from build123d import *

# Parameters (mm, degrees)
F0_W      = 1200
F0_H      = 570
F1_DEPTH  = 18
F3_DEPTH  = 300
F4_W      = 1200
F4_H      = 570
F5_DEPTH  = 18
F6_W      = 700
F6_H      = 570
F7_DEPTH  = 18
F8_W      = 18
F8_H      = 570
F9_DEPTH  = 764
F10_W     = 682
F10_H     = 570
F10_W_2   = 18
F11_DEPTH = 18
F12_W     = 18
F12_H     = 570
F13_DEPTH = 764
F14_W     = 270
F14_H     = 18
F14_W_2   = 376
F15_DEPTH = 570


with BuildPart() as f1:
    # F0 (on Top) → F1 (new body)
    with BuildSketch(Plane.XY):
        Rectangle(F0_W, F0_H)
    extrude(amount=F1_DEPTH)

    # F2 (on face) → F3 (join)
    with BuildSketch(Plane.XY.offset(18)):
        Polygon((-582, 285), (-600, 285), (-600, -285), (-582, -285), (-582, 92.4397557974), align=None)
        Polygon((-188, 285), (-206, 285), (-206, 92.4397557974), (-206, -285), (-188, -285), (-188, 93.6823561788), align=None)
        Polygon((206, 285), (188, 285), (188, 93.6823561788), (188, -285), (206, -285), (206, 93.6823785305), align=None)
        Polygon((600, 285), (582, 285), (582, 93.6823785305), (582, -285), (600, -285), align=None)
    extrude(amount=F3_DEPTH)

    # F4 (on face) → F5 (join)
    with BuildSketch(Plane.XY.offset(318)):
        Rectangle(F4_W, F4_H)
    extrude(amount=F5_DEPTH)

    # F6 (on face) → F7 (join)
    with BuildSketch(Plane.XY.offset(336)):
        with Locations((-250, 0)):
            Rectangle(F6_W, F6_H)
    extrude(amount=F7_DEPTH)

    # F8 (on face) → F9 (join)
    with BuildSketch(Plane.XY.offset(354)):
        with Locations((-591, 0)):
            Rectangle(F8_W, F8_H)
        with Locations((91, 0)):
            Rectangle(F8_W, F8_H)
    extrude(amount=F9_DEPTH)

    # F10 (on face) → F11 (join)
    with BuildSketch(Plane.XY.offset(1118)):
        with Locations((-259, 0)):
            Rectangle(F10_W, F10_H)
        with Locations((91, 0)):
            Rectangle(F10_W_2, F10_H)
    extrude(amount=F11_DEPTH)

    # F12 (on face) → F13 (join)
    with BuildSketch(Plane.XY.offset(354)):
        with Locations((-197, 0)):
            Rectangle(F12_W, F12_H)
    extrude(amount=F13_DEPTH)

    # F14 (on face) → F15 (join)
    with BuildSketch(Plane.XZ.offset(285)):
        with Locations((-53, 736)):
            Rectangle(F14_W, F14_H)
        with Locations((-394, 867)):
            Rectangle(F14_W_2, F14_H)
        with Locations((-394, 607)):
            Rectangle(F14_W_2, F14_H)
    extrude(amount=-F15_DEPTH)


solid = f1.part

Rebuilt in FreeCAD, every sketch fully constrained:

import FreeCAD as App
import Part
import Sketcher
Q = App.Units.Quantity

doc = App.newDocument("Part")
params = doc.addObject("Spreadsheet::Sheet", "Params")
for row, (alias, value) in enumerate([
    ("sketch1_width", "1200 mm"),
    ("sketch1_height", "570 mm"),
    ("pad1_length", "18 mm"),
    ("sketch2_width", "18 mm"),
    ("sketch2_height", "570 mm"),
    ("pad2_length", "300 mm"),
    ("sketch3_width", "1200 mm"),
    ("sketch3_height", "570 mm"),
    ("pad3_length", "18 mm"),
    ("sketch4_width", "700 mm"),
    ("sketch4_height", "570 mm"),
    ("pad4_length", "18 mm"),
    ("sketch5_width", "18 mm"),
    ("sketch5_height", "570 mm"),
    ("pad5_length", "764 mm"),
    ("sketch6_width", "700 mm"),
    ("sketch6_height", "570 mm"),
    ("pad6_length", "18 mm"),
    ("sketch7_width", "18 mm"),
    ("sketch7_height", "570 mm"),
    ("pad7_length", "764 mm"),
    ("sketch8_width", "270 mm"),
    ("sketch8_width2", "376 mm"),
    ("sketch8_height", "18 mm"),
    ("pad8_length", "570 mm"),
], start=1):
    params.set(f"A{row}", alias)
    params.set(f"B{row}", "=" + value)
    params.setAlias(f"B{row}", alias)

body = doc.addObject("PartDesign::Body", "Body")

# Sketch on XY plane
sketch1 = doc.addObject("Sketcher::SketchObject", "Sketch")
body.addObject(sketch1)
sketch1.AttachmentSupport = (doc.XY_Plane, [""])
sketch1.MapMode = "FlatFace"
sketch1.addGeometry(Part.LineSegment(App.Vector(-600, 285, 0), App.Vector(-600, -285, 0)), False)
sketch1.addGeometry(Part.LineSegment(App.Vector(-600, -285, 0), App.Vector(600, -285, 0)), False)
sketch1.addGeometry(Part.LineSegment(App.Vector(600, -285, 0), App.Vector(600, 285, 0)), False)
sketch1.addGeometry(Part.LineSegment(App.Vector(600, 285, 0), App.Vector(-600, 285, 0)), False)
sketch1.addConstraint(Sketcher.Constraint("Coincident", 0, 2, 1, 1))
sketch1.addConstraint(Sketcher.Constraint("Coincident", 1, 2, 2, 1))
sketch1.addConstraint(Sketcher.Constraint("Coincident", 2, 2, 3, 1))
sketch1.addConstraint(Sketcher.Constraint("Coincident", 3, 2, 0, 1))
sketch1.addConstraint(Sketcher.Constraint("Vertical", 0))
sketch1.addConstraint(Sketcher.Constraint("Horizontal", 1))
sketch1.addConstraint(Sketcher.Constraint("Vertical", 2))
sketch1.addConstraint(Sketcher.Constraint("Horizontal", 3))
sketch1.addConstraint(Sketcher.Constraint("Symmetric", 0, 2, 2, 2, -1, 1))
sketch1.addConstraint(Sketcher.Constraint("DistanceX", 1, 1, 1, 2, Q("1200 mm")))
sketch1.addConstraint(Sketcher.Constraint("DistanceY", 0, 2, 0, 1, Q("570 mm")))
sketch1.setExpression("Constraints[9]", "Params.sketch1_width")
sketch1.setExpression("Constraints[10]", "Params.sketch1_height")
pad1 = doc.addObject("PartDesign::Pad", "Pad")
body.addObject(pad1)
pad1.Profile = sketch1
pad1.setExpression("Length", "Params.pad1_length")

# Sketch on XY plane
sketch2 = doc.addObject("Sketcher::SketchObject", "Sketch001")
body.addObject(sketch2)
sketch2.AttachmentSupport = (doc.XY_Plane, [""])
sketch2.MapMode = "FlatFace"
sketch2.AttachmentOffset = App.Placement(App.Vector(0, 0, 18), App.Rotation())
sketch2.addGeometry(Part.LineSegment(App.Vector(-582, 285, 0), App.Vector(-600, 285, 0)), False)
sketch2.addGeometry(Part.LineSegment(App.Vector(-600, 285, 0), App.Vector(-600, -285, 0)), False)
sketch2.addGeometry(Part.LineSegment(App.Vector(-600, -285, 0), App.Vector(-582, -285, 0)), False)
sketch2.addGeometry(Part.LineSegment(App.Vector(-582, -285, 0), App.Vector(-582, 285, 0)), False)
sketch2.addGeometry(Part.LineSegment(App.Vector(-188, 285, 0), App.Vector(-206, 285, 0)), False)
sketch2.addGeometry(Part.LineSegment(App.Vector(-206, 285, 0), App.Vector(-206, -285, 0)), False)
sketch2.addGeometry(Part.LineSegment(App.Vector(-206, -285, 0), App.Vector(-188, -285, 0)), False)
sketch2.addGeometry(Part.LineSegment(App.Vector(-188, -285, 0), App.Vector(-188, 285, 0)), False)
sketch2.addGeometry(Part.LineSegment(App.Vector(206, 285, 0), App.Vector(188, 285, 0)), False)
sketch2.addGeometry(Part.LineSegment(App.Vector(188, 285, 0), App.Vector(188, -285, 0)), False)
sketch2.addGeometry(Part.LineSegment(App.Vector(188, -285, 0), App.Vector(206, -285, 0)), False)
sketch2.addGeometry(Part.LineSegment(App.Vector(206, -285, 0), App.Vector(206, 285, 0)), False)
sketch2.addGeometry(Part.LineSegment(App.Vector(600, 285, 0), App.Vector(582, 285, 0)), False)
sketch2.addGeometry(Part.LineSegment(App.Vector(582, 285, 0), App.Vector(582, -285, 0)), False)
sketch2.addGeometry(Part.LineSegment(App.Vector(582, -285, 0), App.Vector(600, -285, 0)), False)
sketch2.addGeometry(Part.LineSegment(App.Vector(600, -285, 0), App.Vector(600, 285, 0)), False)
sketch2.addConstraint(Sketcher.Constraint("Coincident", 0, 2, 1, 1))
sketch2.addConstraint(Sketcher.Constraint("Coincident", 1, 2, 2, 1))
sketch2.addConstraint(Sketcher.Constraint("Coincident", 2, 2, 3, 1))
sketch2.addConstraint(Sketcher.Constraint("Coincident", 3, 2, 0, 1))
sketch2.addConstraint(Sketcher.Constraint("Coincident", 4, 2, 5, 1))
sketch2.addConstraint(Sketcher.Constraint("Coincident", 5, 2, 6, 1))
sketch2.addConstraint(Sketcher.Constraint("Coincident", 6, 2, 7, 1))
sketch2.addConstraint(Sketcher.Constraint("Coincident", 7, 2, 4, 1))
sketch2.addConstraint(Sketcher.Constraint("Coincident", 8, 2, 9, 1))
sketch2.addConstraint(Sketcher.Constraint("Coincident", 9, 2, 10, 1))
sketch2.addConstraint(Sketcher.Constraint("Coincident", 10, 2, 11, 1))
sketch2.addConstraint(Sketcher.Constraint("Coincident", 11, 2, 8, 1))
sketch2.addConstraint(Sketcher.Constraint("Coincident", 12, 2, 13, 1))
sketch2.addConstraint(Sketcher.Constraint("Coincident", 13, 2, 14, 1))
sketch2.addConstraint(Sketcher.Constraint("Coincident", 14, 2, 15, 1))
sketch2.addConstraint(Sketcher.Constraint("Coincident", 15, 2, 12, 1))
sketch2.addConstraint(Sketcher.Constraint("Horizontal", 0))
sketch2.addConstraint(Sketcher.Constraint("Vertical", 1))
sketch2.addConstraint(Sketcher.Constraint("Horizontal", 2))
sketch2.addConstraint(Sketcher.Constraint("Vertical", 3))
sketch2.addConstraint(Sketcher.Constraint("Horizontal", 4))
sketch2.addConstraint(Sketcher.Constraint("Vertical", 5))
sketch2.addConstraint(Sketcher.Constraint("Horizontal", 6))
sketch2.addConstraint(Sketcher.Constraint("Vertical", 7))
sketch2.addConstraint(Sketcher.Constraint("Horizontal", 8))
sketch2.addConstraint(Sketcher.Constraint("Vertical", 9))
sketch2.addConstraint(Sketcher.Constraint("Horizontal", 10))
sketch2.addConstraint(Sketcher.Constraint("Vertical", 11))
sketch2.addConstraint(Sketcher.Constraint("Horizontal", 12))
sketch2.addConstraint(Sketcher.Constraint("Vertical", 13))
sketch2.addConstraint(Sketcher.Constraint("Horizontal", 14))
sketch2.addConstraint(Sketcher.Constraint("Vertical", 15))
sketch2.addConstraint(Sketcher.Constraint("Symmetric", 6, 2, 8, 2, -1, 1))
sketch2.addConstraint(Sketcher.Constraint("Symmetric", 4, 2, 10, 2, -1, 1))
sketch2.addConstraint(Sketcher.Constraint("Symmetric", 2, 2, 12, 2, -1, 1))
sketch2.addConstraint(Sketcher.Constraint("Symmetric", 0, 2, 14, 2, -1, 1))
sketch2.addConstraint(Sketcher.Constraint("Horizontal", 3, 2, 4, 2))
sketch2.addConstraint(Sketcher.Constraint("Horizontal", 2, 2, 5, 2))
sketch2.addConstraint(Sketcher.Constraint("Horizontal", 7, 2, 8, 2))
sketch2.addConstraint(Sketcher.Constraint("Equal", 2, 4))
sketch2.addConstraint(Sketcher.Constraint("DistanceX", 0, 2, 0, 1, Q("18 mm")))
sketch2.addConstraint(Sketcher.Constraint("DistanceY", 1, 2, 1, 1, Q("570 mm")))
sketch2.addConstraint(Sketcher.Constraint("DistanceX", 0, 2, -1, 1, Q("600 mm")))
sketch2.addConstraint(Sketcher.Constraint("DistanceX", 4, 2, -1, 1, Q("206 mm")))
sketch2.setExpression("Constraints[40]", "Params.sketch2_width")
sketch2.setExpression("Constraints[41]", "Params.sketch2_height")
pad2 = doc.addObject("PartDesign::Pad", "Pad001")
body.addObject(pad2)
pad2.Profile = sketch2
pad2.setExpression("Length", "Params.pad2_length")

# Sketch on XY plane
sketch3 = doc.addObject("Sketcher::SketchObject", "Sketch002")
body.addObject(sketch3)
sketch3.AttachmentSupport = (doc.XY_Plane, [""])
sketch3.MapMode = "FlatFace"
sketch3.AttachmentOffset = App.Placement(App.Vector(0, 0, 318), App.Rotation())
sketch3.addGeometry(Part.LineSegment(App.Vector(-600, 285, 0), App.Vector(-600, -285, 0)), False)
sketch3.addGeometry(Part.LineSegment(App.Vector(-600, -285, 0), App.Vector(600, -285, 0)), False)
sketch3.addGeometry(Part.LineSegment(App.Vector(600, -285, 0), App.Vector(600, 285, 0)), False)
sketch3.addGeometry(Part.LineSegment(App.Vector(600, 285, 0), App.Vector(-600, 285, 0)), False)
sketch3.addConstraint(Sketcher.Constraint("Coincident", 0, 2, 1, 1))
sketch3.addConstraint(Sketcher.Constraint("Coincident", 1, 2, 2, 1))
sketch3.addConstraint(Sketcher.Constraint("Coincident", 2, 2, 3, 1))
sketch3.addConstraint(Sketcher.Constraint("Coincident", 3, 2, 0, 1))
sketch3.addConstraint(Sketcher.Constraint("Vertical", 0))
sketch3.addConstraint(Sketcher.Constraint("Horizontal", 1))
sketch3.addConstraint(Sketcher.Constraint("Vertical", 2))
sketch3.addConstraint(Sketcher.Constraint("Horizontal", 3))
sketch3.addConstraint(Sketcher.Constraint("Symmetric", 0, 2, 2, 2, -1, 1))
sketch3.addConstraint(Sketcher.Constraint("DistanceX", 1, 1, 1, 2, Q("1200 mm")))
sketch3.addConstraint(Sketcher.Constraint("DistanceY", 0, 2, 0, 1, Q("570 mm")))
sketch3.setExpression("Constraints[9]", "Params.sketch3_width")
sketch3.setExpression("Constraints[10]", "Params.sketch3_height")
pad3 = doc.addObject("PartDesign::Pad", "Pad002")
body.addObject(pad3)
pad3.Profile = sketch3
pad3.setExpression("Length", "Params.pad3_length")

# Sketch on XY plane
sketch4 = doc.addObject("Sketcher::SketchObject", "Sketch003")
body.addObject(sketch4)
sketch4.AttachmentSupport = (doc.XY_Plane, [""])
sketch4.MapMode = "FlatFace"
sketch4.AttachmentOffset = App.Placement(App.Vector(0, 0, 336), App.Rotation())
sketch4.addGeometry(Part.LineSegment(App.Vector(-600, 285, 0), App.Vector(-600, -285, 0)), False)
sketch4.addGeometry(Part.LineSegment(App.Vector(-600, -285, 0), App.Vector(100, -285, 0)), False)
sketch4.addGeometry(Part.LineSegment(App.Vector(100, -285, 0), App.Vector(100, 285, 0)), False)
sketch4.addGeometry(Part.LineSegment(App.Vector(100, 285, 0), App.Vector(-600, 285, 0)), False)
sketch4.addConstraint(Sketcher.Constraint("Coincident", 0, 2, 1, 1))
sketch4.addConstraint(Sketcher.Constraint("Coincident", 1, 2, 2, 1))
sketch4.addConstraint(Sketcher.Constraint("Coincident", 2, 2, 3, 1))
sketch4.addConstraint(Sketcher.Constraint("Coincident", 3, 2, 0, 1))
sketch4.addConstraint(Sketcher.Constraint("Vertical", 0))
sketch4.addConstraint(Sketcher.Constraint("Horizontal", 1))
sketch4.addConstraint(Sketcher.Constraint("Vertical", 2))
sketch4.addConstraint(Sketcher.Constraint("Horizontal", 3))
sketch4.addConstraint(Sketcher.Constraint("DistanceX", 1, 1, 1, 2, Q("700 mm")))
sketch4.addConstraint(Sketcher.Constraint("DistanceY", 0, 2, 0, 1, Q("570 mm")))
sketch4.addConstraint(Sketcher.Constraint("DistanceX", 0, 2, -1, 1, Q("600 mm")))
sketch4.addConstraint(Sketcher.Constraint("DistanceY", 0, 2, -1, 1, Q("285 mm")))
sketch4.setExpression("Constraints[8]", "Params.sketch4_width")
sketch4.setExpression("Constraints[9]", "Params.sketch4_height")
pad4 = doc.addObject("PartDesign::Pad", "Pad003")
body.addObject(pad4)
pad4.Profile = sketch4
pad4.setExpression("Length", "Params.pad4_length")

# Sketch on XY plane
sketch5 = doc.addObject("Sketcher::SketchObject", "Sketch004")
body.addObject(sketch5)
sketch5.AttachmentSupport = (doc.XY_Plane, [""])
sketch5.MapMode = "FlatFace"
sketch5.AttachmentOffset = App.Placement(App.Vector(0, 0, 354), App.Rotation())
sketch5.addGeometry(Part.LineSegment(App.Vector(-600, 285, 0), App.Vector(-600, -285, 0)), False)
sketch5.addGeometry(Part.LineSegment(App.Vector(-600, -285, 0), App.Vector(-582, -285, 0)), False)
sketch5.addGeometry(Part.LineSegment(App.Vector(-582, -285, 0), App.Vector(-582, 285, 0)), False)
sketch5.addGeometry(Part.LineSegment(App.Vector(-582, 285, 0), App.Vector(-600, 285, 0)), False)
sketch5.addGeometry(Part.LineSegment(App.Vector(82, 285, 0), App.Vector(82, -285, 0)), False)
sketch5.addGeometry(Part.LineSegment(App.Vector(82, -285, 0), App.Vector(100, -285, 0)), False)
sketch5.addGeometry(Part.LineSegment(App.Vector(100, -285, 0), App.Vector(100, 285, 0)), False)
sketch5.addGeometry(Part.LineSegment(App.Vector(100, 285, 0), App.Vector(82, 285, 0)), False)
sketch5.addConstraint(Sketcher.Constraint("Coincident", 0, 2, 1, 1))
sketch5.addConstraint(Sketcher.Constraint("Coincident", 1, 2, 2, 1))
sketch5.addConstraint(Sketcher.Constraint("Coincident", 2, 2, 3, 1))
sketch5.addConstraint(Sketcher.Constraint("Coincident", 3, 2, 0, 1))
sketch5.addConstraint(Sketcher.Constraint("Coincident", 4, 2, 5, 1))
sketch5.addConstraint(Sketcher.Constraint("Coincident", 5, 2, 6, 1))
sketch5.addConstraint(Sketcher.Constraint("Coincident", 6, 2, 7, 1))
sketch5.addConstraint(Sketcher.Constraint("Coincident", 7, 2, 4, 1))
sketch5.addConstraint(Sketcher.Constraint("Vertical", 0))
sketch5.addConstraint(Sketcher.Constraint("Horizontal", 1))
sketch5.addConstraint(Sketcher.Constraint("Vertical", 2))
sketch5.addConstraint(Sketcher.Constraint("Horizontal", 3))
sketch5.addConstraint(Sketcher.Constraint("Vertical", 4))
sketch5.addConstraint(Sketcher.Constraint("Horizontal", 5))
sketch5.addConstraint(Sketcher.Constraint("Vertical", 6))
sketch5.addConstraint(Sketcher.Constraint("Horizontal", 7))
sketch5.addConstraint(Sketcher.Constraint("Horizontal", 1, 2, 4, 2))
sketch5.addConstraint(Sketcher.Constraint("Horizontal", 3, 2, 6, 2))
sketch5.addConstraint(Sketcher.Constraint("Equal", 3, 5))
sketch5.addConstraint(Sketcher.Constraint("DistanceX", 1, 1, 1, 2, Q("18 mm")))
sketch5.addConstraint(Sketcher.Constraint("DistanceY", 0, 2, 0, 1, Q("570 mm")))
sketch5.addConstraint(Sketcher.Constraint("DistanceX", 0, 2, -1, 1, Q("600 mm")))
sketch5.addConstraint(Sketcher.Constraint("DistanceY", 0, 2, -1, 1, Q("285 mm")))
sketch5.addConstraint(Sketcher.Constraint("DistanceX", -1, 1, 4, 2, Q("82 mm")))
sketch5.setExpression("Constraints[19]", "Params.sketch5_width")
sketch5.setExpression("Constraints[20]", "Params.sketch5_height")
pad5 = doc.addObject("PartDesign::Pad", "Pad004")
body.addObject(pad5)
pad5.Profile = sketch5
pad5.setExpression("Length", "Params.pad5_length")

# Sketch on XY plane
sketch6 = doc.addObject("Sketcher::SketchObject", "Sketch005")
body.addObject(sketch6)
sketch6.AttachmentSupport = (doc.XY_Plane, [""])
sketch6.MapMode = "FlatFace"
sketch6.AttachmentOffset = App.Placement(App.Vector(0, 0, 1118), App.Rotation())
sketch6.addGeometry(Part.LineSegment(App.Vector(-600, 285, 0), App.Vector(-600, -285, 0)), False)
sketch6.addGeometry(Part.LineSegment(App.Vector(-600, -285, 0), App.Vector(100, -285, 0)), False)
sketch6.addGeometry(Part.LineSegment(App.Vector(100, -285, 0), App.Vector(100, 285, 0)), False)
sketch6.addGeometry(Part.LineSegment(App.Vector(100, 285, 0), App.Vector(-600, 285, 0)), False)
sketch6.addConstraint(Sketcher.Constraint("Coincident", 0, 2, 1, 1))
sketch6.addConstraint(Sketcher.Constraint("Coincident", 1, 2, 2, 1))
sketch6.addConstraint(Sketcher.Constraint("Coincident", 2, 2, 3, 1))
sketch6.addConstraint(Sketcher.Constraint("Coincident", 3, 2, 0, 1))
sketch6.addConstraint(Sketcher.Constraint("Vertical", 0))
sketch6.addConstraint(Sketcher.Constraint("Horizontal", 1))
sketch6.addConstraint(Sketcher.Constraint("Vertical", 2))
sketch6.addConstraint(Sketcher.Constraint("Horizontal", 3))
sketch6.addConstraint(Sketcher.Constraint("DistanceX", 1, 1, 1, 2, Q("700 mm")))
sketch6.addConstraint(Sketcher.Constraint("DistanceY", 0, 2, 0, 1, Q("570 mm")))
sketch6.addConstraint(Sketcher.Constraint("DistanceX", 0, 2, -1, 1, Q("600 mm")))
sketch6.addConstraint(Sketcher.Constraint("DistanceY", 0, 2, -1, 1, Q("285 mm")))
sketch6.setExpression("Constraints[8]", "Params.sketch6_width")
sketch6.setExpression("Constraints[9]", "Params.sketch6_height")
pad6 = doc.addObject("PartDesign::Pad", "Pad005")
body.addObject(pad6)
pad6.Profile = sketch6
pad6.setExpression("Length", "Params.pad6_length")

# Sketch on XY plane
sketch7 = doc.addObject("Sketcher::SketchObject", "Sketch006")
body.addObject(sketch7)
sketch7.AttachmentSupport = (doc.XY_Plane, [""])
sketch7.MapMode = "FlatFace"
sketch7.AttachmentOffset = App.Placement(App.Vector(0, 0, 354), App.Rotation())
sketch7.addGeometry(Part.LineSegment(App.Vector(-206, 285, 0), App.Vector(-206, -285, 0)), False)
sketch7.addGeometry(Part.LineSegment(App.Vector(-206, -285, 0), App.Vector(-188, -285, 0)), False)
sketch7.addGeometry(Part.LineSegment(App.Vector(-188, -285, 0), App.Vector(-188, 285, 0)), False)
sketch7.addGeometry(Part.LineSegment(App.Vector(-188, 285, 0), App.Vector(-206, 285, 0)), False)
sketch7.addConstraint(Sketcher.Constraint("Coincident", 0, 2, 1, 1))
sketch7.addConstraint(Sketcher.Constraint("Coincident", 1, 2, 2, 1))
sketch7.addConstraint(Sketcher.Constraint("Coincident", 2, 2, 3, 1))
sketch7.addConstraint(Sketcher.Constraint("Coincident", 3, 2, 0, 1))
sketch7.addConstraint(Sketcher.Constraint("Vertical", 0))
sketch7.addConstraint(Sketcher.Constraint("Horizontal", 1))
sketch7.addConstraint(Sketcher.Constraint("Vertical", 2))
sketch7.addConstraint(Sketcher.Constraint("Horizontal", 3))
sketch7.addConstraint(Sketcher.Constraint("DistanceX", 1, 1, 1, 2, Q("18 mm")))
sketch7.addConstraint(Sketcher.Constraint("DistanceY", 0, 2, 0, 1, Q("570 mm")))
sketch7.addConstraint(Sketcher.Constraint("DistanceX", 0, 2, -1, 1, Q("206 mm")))
sketch7.addConstraint(Sketcher.Constraint("DistanceY", 0, 2, -1, 1, Q("285 mm")))
sketch7.setExpression("Constraints[8]", "Params.sketch7_width")
sketch7.setExpression("Constraints[9]", "Params.sketch7_height")
pad7 = doc.addObject("PartDesign::Pad", "Pad006")
body.addObject(pad7)
pad7.Profile = sketch7
pad7.setExpression("Length", "Params.pad7_length")

# Sketch on XZ plane
sketch8 = doc.addObject("Sketcher::SketchObject", "Sketch007")
body.addObject(sketch8)
sketch8.AttachmentSupport = (doc.XZ_Plane, [""])
sketch8.MapMode = "FlatFace"
sketch8.AttachmentOffset = App.Placement(App.Vector(0, 0, 285), App.Rotation())
sketch8.addGeometry(Part.LineSegment(App.Vector(-188, 745, 0), App.Vector(-188, 727, 0)), False)
sketch8.addGeometry(Part.LineSegment(App.Vector(-188, 727, 0), App.Vector(82, 727, 0)), False)
sketch8.addGeometry(Part.LineSegment(App.Vector(82, 727, 0), App.Vector(82, 745, 0)), False)
sketch8.addGeometry(Part.LineSegment(App.Vector(82, 745, 0), App.Vector(-188, 745, 0)), False)
sketch8.addGeometry(Part.LineSegment(App.Vector(-582, 876, 0), App.Vector(-582, 858, 0)), False)
sketch8.addGeometry(Part.LineSegment(App.Vector(-582, 858, 0), App.Vector(-206, 858, 0)), False)
sketch8.addGeometry(Part.LineSegment(App.Vector(-206, 858, 0), App.Vector(-206, 876, 0)), False)
sketch8.addGeometry(Part.LineSegment(App.Vector(-206, 876, 0), App.Vector(-582, 876, 0)), False)
sketch8.addGeometry(Part.LineSegment(App.Vector(-582, 616, 0), App.Vector(-582, 598, 0)), False)
sketch8.addGeometry(Part.LineSegment(App.Vector(-582, 598, 0), App.Vector(-206, 598, 0)), False)
sketch8.addGeometry(Part.LineSegment(App.Vector(-206, 598, 0), App.Vector(-206, 616, 0)), False)
sketch8.addGeometry(Part.LineSegment(App.Vector(-206, 616, 0), App.Vector(-582, 616, 0)), False)
sketch8.addConstraint(Sketcher.Constraint("Coincident", 0, 2, 1, 1))
sketch8.addConstraint(Sketcher.Constraint("Coincident", 1, 2, 2, 1))
sketch8.addConstraint(Sketcher.Constraint("Coincident", 2, 2, 3, 1))
sketch8.addConstraint(Sketcher.Constraint("Coincident", 3, 2, 0, 1))
sketch8.addConstraint(Sketcher.Constraint("Coincident", 4, 2, 5, 1))
sketch8.addConstraint(Sketcher.Constraint("Coincident", 5, 2, 6, 1))
sketch8.addConstraint(Sketcher.Constraint("Coincident", 6, 2, 7, 1))
sketch8.addConstraint(Sketcher.Constraint("Coincident", 7, 2, 4, 1))
sketch8.addConstraint(Sketcher.Constraint("Coincident", 8, 2, 9, 1))
sketch8.addConstraint(Sketcher.Constraint("Coincident", 9, 2, 10, 1))
sketch8.addConstraint(Sketcher.Constraint("Coincident", 10, 2, 11, 1))
sketch8.addConstraint(Sketcher.Constraint("Coincident", 11, 2, 8, 1))
sketch8.addConstraint(Sketcher.Constraint("Vertical", 0))
sketch8.addConstraint(Sketcher.Constraint("Horizontal", 1))
sketch8.addConstraint(Sketcher.Constraint("Vertical", 2))
sketch8.addConstraint(Sketcher.Constraint("Horizontal", 3))
sketch8.addConstraint(Sketcher.Constraint("Vertical", 4))
sketch8.addConstraint(Sketcher.Constraint("Horizontal", 5))
sketch8.addConstraint(Sketcher.Constraint("Vertical", 6))
sketch8.addConstraint(Sketcher.Constraint("Horizontal", 7))
sketch8.addConstraint(Sketcher.Constraint("Vertical", 8))
sketch8.addConstraint(Sketcher.Constraint("Horizontal", 9))
sketch8.addConstraint(Sketcher.Constraint("Vertical", 10))
sketch8.addConstraint(Sketcher.Constraint("Horizontal", 11))
sketch8.addConstraint(Sketcher.Constraint("Vertical", 7, 2, 8, 2))
sketch8.addConstraint(Sketcher.Constraint("Vertical", 6, 2, 9, 2))
sketch8.addConstraint(Sketcher.Constraint("Equal", 2, 4))
sketch8.addConstraint(Sketcher.Constraint("Equal", 6, 8))
sketch8.addConstraint(Sketcher.Constraint("DistanceX", 1, 1, 1, 2, Q("270 mm")))
sketch8.addConstraint(Sketcher.Constraint("DistanceX", 5, 1, 5, 2, Q("376 mm")))
sketch8.addConstraint(Sketcher.Constraint("DistanceY", 0, 2, 0, 1, Q("18 mm")))
sketch8.addConstraint(Sketcher.Constraint("DistanceX", 0, 2, -1, 1, Q("188 mm")))
sketch8.addConstraint(Sketcher.Constraint("DistanceY", -1, 1, 0, 2, Q("727 mm")))
sketch8.addConstraint(Sketcher.Constraint("DistanceX", 4, 2, -1, 1, Q("582 mm")))
sketch8.addConstraint(Sketcher.Constraint("DistanceY", -1, 1, 4, 2, Q("858 mm")))
sketch8.addConstraint(Sketcher.Constraint("DistanceY", -1, 1, 8, 2, Q("598 mm")))
sketch8.setExpression("Constraints[28]", "Params.sketch8_width")
sketch8.setExpression("Constraints[29]", "Params.sketch8_width2")
sketch8.setExpression("Constraints[30]", "Params.sketch8_height")
pad8 = doc.addObject("PartDesign::Pad", "Pad007")
body.addObject(pad8)
pad8.Profile = sketch8
pad8.setExpression("Length", "Params.pad8_length")
pad8.Reversed = True

doc.recompute()
